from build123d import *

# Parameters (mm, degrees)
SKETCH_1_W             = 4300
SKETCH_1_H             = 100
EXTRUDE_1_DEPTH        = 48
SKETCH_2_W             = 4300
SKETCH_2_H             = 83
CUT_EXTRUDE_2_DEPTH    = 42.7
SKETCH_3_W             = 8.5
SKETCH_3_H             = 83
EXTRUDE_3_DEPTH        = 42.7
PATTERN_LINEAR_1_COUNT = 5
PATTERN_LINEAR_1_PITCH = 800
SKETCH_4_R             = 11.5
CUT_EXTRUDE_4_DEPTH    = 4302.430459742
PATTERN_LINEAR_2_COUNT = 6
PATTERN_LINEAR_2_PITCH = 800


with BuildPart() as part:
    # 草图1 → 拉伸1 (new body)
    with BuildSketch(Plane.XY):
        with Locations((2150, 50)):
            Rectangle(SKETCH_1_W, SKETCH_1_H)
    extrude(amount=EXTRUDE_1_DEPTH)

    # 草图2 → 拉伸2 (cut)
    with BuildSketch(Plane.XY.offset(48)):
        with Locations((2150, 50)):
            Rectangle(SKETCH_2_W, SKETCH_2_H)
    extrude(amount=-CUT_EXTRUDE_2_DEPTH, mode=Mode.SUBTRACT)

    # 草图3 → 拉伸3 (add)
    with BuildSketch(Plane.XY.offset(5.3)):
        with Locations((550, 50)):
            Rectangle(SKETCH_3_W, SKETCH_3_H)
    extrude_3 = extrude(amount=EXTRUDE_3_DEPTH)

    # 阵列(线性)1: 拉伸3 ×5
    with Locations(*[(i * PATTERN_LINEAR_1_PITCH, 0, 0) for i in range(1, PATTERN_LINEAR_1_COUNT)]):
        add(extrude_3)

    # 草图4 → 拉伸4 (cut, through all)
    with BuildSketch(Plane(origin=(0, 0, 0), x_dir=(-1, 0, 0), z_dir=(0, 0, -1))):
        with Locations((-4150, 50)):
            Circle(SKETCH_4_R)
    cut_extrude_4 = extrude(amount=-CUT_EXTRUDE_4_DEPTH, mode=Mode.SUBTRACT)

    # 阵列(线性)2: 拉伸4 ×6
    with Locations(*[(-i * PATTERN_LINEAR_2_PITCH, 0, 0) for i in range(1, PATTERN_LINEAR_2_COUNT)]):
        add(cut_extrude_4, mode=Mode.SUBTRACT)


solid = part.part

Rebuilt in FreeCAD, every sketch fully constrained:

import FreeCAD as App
import Part
import Sketcher

V = App.Vector
Q = App.Units.Quantity

doc = App.newDocument("Part")
body = doc.addObject("PartDesign::Body", "Body")

# Sketch on XY plane
sketch1 = doc.addObject("Sketcher::SketchObject", "Sketch")
body.addObject(sketch1)
sketch1.AttachmentSupport = (doc.XY_Plane, [""])
sketch1.MapMode = "FlatFace"
sketch1.addGeometry(Part.LineSegment(V(0, 100, 0), V(0, 0, 0)), False)
sketch1.addGeometry(Part.LineSegment(V(0, 0, 0), V(4300, 0, 0)), False)
sketch1.addGeometry(Part.LineSegment(V(4300, 0, 0), V(4300, 100, 0)), False)
sketch1.addGeometry(Part.LineSegment(V(4300, 100, 0), V(0, 100, 0)), False)
sketch1.addConstraint(Sketcher.Constraint("Coincident", 0, 2, 1, 1))
sketch1.addConstraint(Sketcher.Constraint("Coincident", 1, 2, 2, 1))
sketch1.addConstraint(Sketcher.Constraint("Coincident", 2, 2, 3, 1))
sketch1.addConstraint(Sketcher.Constraint("Coincident", 3, 2, 0, 1))
sketch1.addConstraint(Sketcher.Constraint("Vertical", 0))
sketch1.addConstraint(Sketcher.Constraint("Horizontal", 1))
sketch1.addConstraint(Sketcher.Constraint("Vertical", 2))
sketch1.addConstraint(Sketcher.Constraint("Horizontal", 3))
sketch1.addConstraint(Sketcher.Constraint("Coincident", 0, 2, -1, 1))
sketch1.addConstraint(Sketcher.Constraint("DistanceX", 1, 1, 1, 2, Q("4300 mm")))
sketch1.addConstraint(Sketcher.Constraint("DistanceY", 0, 2, 0, 1, Q("100 mm")))
pad1 = doc.addObject("PartDesign::Pad", "Pad")
body.addObject(pad1)
pad1.Profile = sketch1
pad1.Length = 48

# Sketch on XY plane
sketch2 = doc.addObject("Sketcher::SketchObject", "Sketch001")
body.addObject(sketch2)
sketch2.AttachmentSupport = (doc.XY_Plane, [""])
sketch2.MapMode = "FlatFace"
sketch2.AttachmentOffset = App.Placement(V(0, 0, 48), App.Rotation())
sketch2.addGeometry(Part.LineSegment(V(0, 91.5, 0), V(0, 8.5, 0)), False)
sketch2.addGeometry(Part.LineSegment(V(0, 8.5, 0), V(4300, 8.5, 0)), False)
sketch2.addGeometry(Part.LineSegment(V(4300, 8.5, 0), V(4300, 91.5, 0)), False)
sketch2.addGeometry(Part.LineSegment(V(4300, 91.5, 0), V(0, 91.5, 0)), False)
sketch2.addConstraint(Sketcher.Constraint("Coincident", 0, 2, 1, 1))
sketch2.addConstraint(Sketcher.Constraint("Coincident", 1, 2, 2, 1))
sketch2.addConstraint(Sketcher.Constraint("Coincident", 2, 2, 3, 1))
sketch2.addConstraint(Sketcher.Constraint("Coincident", 3, 2, 0, 1))
sketch2.addConstraint(Sketcher.Constraint("Vertical", 0))
sketch2.addConstraint(Sketcher.Constraint("Horizontal", 1))
sketch2.addConstraint(Sketcher.Constraint("Vertical", 2))
sketch2.addConstraint(Sketcher.Constraint("Horizontal", 3))
sketch2.addConstraint(Sketcher.Constraint("PointOnObject", 0, 2, -2))
sketch2.addConstraint(Sketcher.Constraint("DistanceX", 1, 1, 1, 2, Q("4300 mm")))
sketch2.addConstraint(Sketcher.Constraint("DistanceY", 0, 2, 0, 1, Q("83 mm")))
sketch2.addConstraint(Sketcher.Constraint("DistanceY", -1, 1, 0, 2, Q("8.5 mm")))
pocket1 = doc.addObject("PartDesign::Pocket", "Pocket")
body.addObject(pocket1)
pocket1.Profile = sketch2
pocket1.Length = 42.7

# Sketch on XY plane
sketch3 = doc.addObject("Sketcher::SketchObject", "Sketch002")
body.addObject(sketch3)
sketch3.AttachmentSupport = (doc.XY_Plane, [""])
sketch3.MapMode = "FlatFace"
sketch3.AttachmentOffset = App.Placement(V(0, 0, 5.3), App.Rotation())
sketch3.addGeometry(Part.LineSegment(V(545.75, 91.5, 0), V(545.75, 8.5, 0)), False)
sketch3.addGeometry(Part.LineSegment(V(545.75, 8.5, 0), V(554.25, 8.5, 0)), False)
sketch3.addGeometry(Part.LineSegment(V(554.25, 8.5, 0), V(554.25, 91.5, 0)), False)
sketch3.addGeometry(Part.LineSegment(V(554.25, 91.5, 0), V(545.75, 91.5, 0)), False)
sketch3.addConstraint(Sketcher.Constraint("Coincident", 0, 2, 1, 1))
sketch3.addConstraint(Sketcher.Constraint("Coincident", 1, 2, 2, 1))
sketch3.addConstraint(Sketcher.Constraint("Coincident", 2, 2, 3, 1))
sketch3.addConstraint(Sketcher.Constraint("Coincident", 3, 2, 0, 1))
sketch3.addConstraint(Sketcher.Constraint("Vertical", 0))
sketch3.addConstraint(Sketcher.Constraint("Horizontal", 1))
sketch3.addConstraint(Sketcher.Constraint("Vertical", 2))
sketch3.addConstraint(Sketcher.Constraint("Horizontal", 3))
sketch3.addConstraint(Sketcher.Constraint("DistanceY", 0, 2, 0, 1, Q("83 mm")))
sketch3.addConstraint(Sketcher.Constraint("DistanceX", 1, 1, 1, 2, Q("8.5 mm")))
sketch3.addConstraint(Sketcher.Constraint("DistanceY", -1, 1, 0, 2, Q("8.5 mm")))
sketch3.addConstraint(Sketcher.Constraint("DistanceX", -1, 1, 0, 2, Q("545.75 mm")))
pad2 = doc.addObject("PartDesign::Pad", "Pad001")
body.addObject(pad2)
pad2.Profile = sketch3
pad2.Length = 42.7
doc.recompute()

linearpattern = doc.addObject("PartDesign::LinearPattern", "LinearPattern")
body.addObject(linearpattern)
linearpattern.Originals = [pad2]
linearpattern.Direction = (doc.X_Axis, [""])
linearpattern.Mode = "offset"
linearpattern.Offset = 800
linearpattern.Occurrences = 5
body.Tip = linearpattern

# Sketch on XY plane
sketch4 = doc.addObject("Sketcher::SketchObject", "Sketch003")
body.addObject(sketch4)
sketch4.AttachmentSupport = (doc.XY_Plane, [""])
sketch4.MapMode = "FlatFace"
sketch4.addGeometry(Part.Circle(V(4150, 50, 0), V(0, 0, 1), 11.5), False)
sketch4.addConstraint(Sketcher.Constraint("Diameter", 0, Q("23 mm")))
sketch4.addConstraint(Sketcher.Constraint("DistanceX", -1, 1, 0, 3, Q("4150 mm")))
sketch4.addConstraint(Sketcher.Constraint("DistanceY", -1, 1, 0, 3, Q("50 mm")))
pocket2 = doc.addObject("PartDesign::Pocket", "Pocket001")
body.addObject(pocket2)
pocket2.Profile = sketch4
pocket2.Type = "ThroughAll"
pocket2.Reversed = True
doc.recompute()

linearpattern2 = doc.addObject("PartDesign::LinearPattern", "LinearPattern001")
body.addObject(linearpattern2)
linearpattern2.Originals = [pocket2]
linearpattern2.Direction = (doc.X_Axis, [""])
linearpattern2.Mode = "offset"
linearpattern2.Offset = 800
linearpattern2.Occurrences = 6
linearpattern2.Reversed = True
body.Tip = linearpattern2

doc.recompute()
